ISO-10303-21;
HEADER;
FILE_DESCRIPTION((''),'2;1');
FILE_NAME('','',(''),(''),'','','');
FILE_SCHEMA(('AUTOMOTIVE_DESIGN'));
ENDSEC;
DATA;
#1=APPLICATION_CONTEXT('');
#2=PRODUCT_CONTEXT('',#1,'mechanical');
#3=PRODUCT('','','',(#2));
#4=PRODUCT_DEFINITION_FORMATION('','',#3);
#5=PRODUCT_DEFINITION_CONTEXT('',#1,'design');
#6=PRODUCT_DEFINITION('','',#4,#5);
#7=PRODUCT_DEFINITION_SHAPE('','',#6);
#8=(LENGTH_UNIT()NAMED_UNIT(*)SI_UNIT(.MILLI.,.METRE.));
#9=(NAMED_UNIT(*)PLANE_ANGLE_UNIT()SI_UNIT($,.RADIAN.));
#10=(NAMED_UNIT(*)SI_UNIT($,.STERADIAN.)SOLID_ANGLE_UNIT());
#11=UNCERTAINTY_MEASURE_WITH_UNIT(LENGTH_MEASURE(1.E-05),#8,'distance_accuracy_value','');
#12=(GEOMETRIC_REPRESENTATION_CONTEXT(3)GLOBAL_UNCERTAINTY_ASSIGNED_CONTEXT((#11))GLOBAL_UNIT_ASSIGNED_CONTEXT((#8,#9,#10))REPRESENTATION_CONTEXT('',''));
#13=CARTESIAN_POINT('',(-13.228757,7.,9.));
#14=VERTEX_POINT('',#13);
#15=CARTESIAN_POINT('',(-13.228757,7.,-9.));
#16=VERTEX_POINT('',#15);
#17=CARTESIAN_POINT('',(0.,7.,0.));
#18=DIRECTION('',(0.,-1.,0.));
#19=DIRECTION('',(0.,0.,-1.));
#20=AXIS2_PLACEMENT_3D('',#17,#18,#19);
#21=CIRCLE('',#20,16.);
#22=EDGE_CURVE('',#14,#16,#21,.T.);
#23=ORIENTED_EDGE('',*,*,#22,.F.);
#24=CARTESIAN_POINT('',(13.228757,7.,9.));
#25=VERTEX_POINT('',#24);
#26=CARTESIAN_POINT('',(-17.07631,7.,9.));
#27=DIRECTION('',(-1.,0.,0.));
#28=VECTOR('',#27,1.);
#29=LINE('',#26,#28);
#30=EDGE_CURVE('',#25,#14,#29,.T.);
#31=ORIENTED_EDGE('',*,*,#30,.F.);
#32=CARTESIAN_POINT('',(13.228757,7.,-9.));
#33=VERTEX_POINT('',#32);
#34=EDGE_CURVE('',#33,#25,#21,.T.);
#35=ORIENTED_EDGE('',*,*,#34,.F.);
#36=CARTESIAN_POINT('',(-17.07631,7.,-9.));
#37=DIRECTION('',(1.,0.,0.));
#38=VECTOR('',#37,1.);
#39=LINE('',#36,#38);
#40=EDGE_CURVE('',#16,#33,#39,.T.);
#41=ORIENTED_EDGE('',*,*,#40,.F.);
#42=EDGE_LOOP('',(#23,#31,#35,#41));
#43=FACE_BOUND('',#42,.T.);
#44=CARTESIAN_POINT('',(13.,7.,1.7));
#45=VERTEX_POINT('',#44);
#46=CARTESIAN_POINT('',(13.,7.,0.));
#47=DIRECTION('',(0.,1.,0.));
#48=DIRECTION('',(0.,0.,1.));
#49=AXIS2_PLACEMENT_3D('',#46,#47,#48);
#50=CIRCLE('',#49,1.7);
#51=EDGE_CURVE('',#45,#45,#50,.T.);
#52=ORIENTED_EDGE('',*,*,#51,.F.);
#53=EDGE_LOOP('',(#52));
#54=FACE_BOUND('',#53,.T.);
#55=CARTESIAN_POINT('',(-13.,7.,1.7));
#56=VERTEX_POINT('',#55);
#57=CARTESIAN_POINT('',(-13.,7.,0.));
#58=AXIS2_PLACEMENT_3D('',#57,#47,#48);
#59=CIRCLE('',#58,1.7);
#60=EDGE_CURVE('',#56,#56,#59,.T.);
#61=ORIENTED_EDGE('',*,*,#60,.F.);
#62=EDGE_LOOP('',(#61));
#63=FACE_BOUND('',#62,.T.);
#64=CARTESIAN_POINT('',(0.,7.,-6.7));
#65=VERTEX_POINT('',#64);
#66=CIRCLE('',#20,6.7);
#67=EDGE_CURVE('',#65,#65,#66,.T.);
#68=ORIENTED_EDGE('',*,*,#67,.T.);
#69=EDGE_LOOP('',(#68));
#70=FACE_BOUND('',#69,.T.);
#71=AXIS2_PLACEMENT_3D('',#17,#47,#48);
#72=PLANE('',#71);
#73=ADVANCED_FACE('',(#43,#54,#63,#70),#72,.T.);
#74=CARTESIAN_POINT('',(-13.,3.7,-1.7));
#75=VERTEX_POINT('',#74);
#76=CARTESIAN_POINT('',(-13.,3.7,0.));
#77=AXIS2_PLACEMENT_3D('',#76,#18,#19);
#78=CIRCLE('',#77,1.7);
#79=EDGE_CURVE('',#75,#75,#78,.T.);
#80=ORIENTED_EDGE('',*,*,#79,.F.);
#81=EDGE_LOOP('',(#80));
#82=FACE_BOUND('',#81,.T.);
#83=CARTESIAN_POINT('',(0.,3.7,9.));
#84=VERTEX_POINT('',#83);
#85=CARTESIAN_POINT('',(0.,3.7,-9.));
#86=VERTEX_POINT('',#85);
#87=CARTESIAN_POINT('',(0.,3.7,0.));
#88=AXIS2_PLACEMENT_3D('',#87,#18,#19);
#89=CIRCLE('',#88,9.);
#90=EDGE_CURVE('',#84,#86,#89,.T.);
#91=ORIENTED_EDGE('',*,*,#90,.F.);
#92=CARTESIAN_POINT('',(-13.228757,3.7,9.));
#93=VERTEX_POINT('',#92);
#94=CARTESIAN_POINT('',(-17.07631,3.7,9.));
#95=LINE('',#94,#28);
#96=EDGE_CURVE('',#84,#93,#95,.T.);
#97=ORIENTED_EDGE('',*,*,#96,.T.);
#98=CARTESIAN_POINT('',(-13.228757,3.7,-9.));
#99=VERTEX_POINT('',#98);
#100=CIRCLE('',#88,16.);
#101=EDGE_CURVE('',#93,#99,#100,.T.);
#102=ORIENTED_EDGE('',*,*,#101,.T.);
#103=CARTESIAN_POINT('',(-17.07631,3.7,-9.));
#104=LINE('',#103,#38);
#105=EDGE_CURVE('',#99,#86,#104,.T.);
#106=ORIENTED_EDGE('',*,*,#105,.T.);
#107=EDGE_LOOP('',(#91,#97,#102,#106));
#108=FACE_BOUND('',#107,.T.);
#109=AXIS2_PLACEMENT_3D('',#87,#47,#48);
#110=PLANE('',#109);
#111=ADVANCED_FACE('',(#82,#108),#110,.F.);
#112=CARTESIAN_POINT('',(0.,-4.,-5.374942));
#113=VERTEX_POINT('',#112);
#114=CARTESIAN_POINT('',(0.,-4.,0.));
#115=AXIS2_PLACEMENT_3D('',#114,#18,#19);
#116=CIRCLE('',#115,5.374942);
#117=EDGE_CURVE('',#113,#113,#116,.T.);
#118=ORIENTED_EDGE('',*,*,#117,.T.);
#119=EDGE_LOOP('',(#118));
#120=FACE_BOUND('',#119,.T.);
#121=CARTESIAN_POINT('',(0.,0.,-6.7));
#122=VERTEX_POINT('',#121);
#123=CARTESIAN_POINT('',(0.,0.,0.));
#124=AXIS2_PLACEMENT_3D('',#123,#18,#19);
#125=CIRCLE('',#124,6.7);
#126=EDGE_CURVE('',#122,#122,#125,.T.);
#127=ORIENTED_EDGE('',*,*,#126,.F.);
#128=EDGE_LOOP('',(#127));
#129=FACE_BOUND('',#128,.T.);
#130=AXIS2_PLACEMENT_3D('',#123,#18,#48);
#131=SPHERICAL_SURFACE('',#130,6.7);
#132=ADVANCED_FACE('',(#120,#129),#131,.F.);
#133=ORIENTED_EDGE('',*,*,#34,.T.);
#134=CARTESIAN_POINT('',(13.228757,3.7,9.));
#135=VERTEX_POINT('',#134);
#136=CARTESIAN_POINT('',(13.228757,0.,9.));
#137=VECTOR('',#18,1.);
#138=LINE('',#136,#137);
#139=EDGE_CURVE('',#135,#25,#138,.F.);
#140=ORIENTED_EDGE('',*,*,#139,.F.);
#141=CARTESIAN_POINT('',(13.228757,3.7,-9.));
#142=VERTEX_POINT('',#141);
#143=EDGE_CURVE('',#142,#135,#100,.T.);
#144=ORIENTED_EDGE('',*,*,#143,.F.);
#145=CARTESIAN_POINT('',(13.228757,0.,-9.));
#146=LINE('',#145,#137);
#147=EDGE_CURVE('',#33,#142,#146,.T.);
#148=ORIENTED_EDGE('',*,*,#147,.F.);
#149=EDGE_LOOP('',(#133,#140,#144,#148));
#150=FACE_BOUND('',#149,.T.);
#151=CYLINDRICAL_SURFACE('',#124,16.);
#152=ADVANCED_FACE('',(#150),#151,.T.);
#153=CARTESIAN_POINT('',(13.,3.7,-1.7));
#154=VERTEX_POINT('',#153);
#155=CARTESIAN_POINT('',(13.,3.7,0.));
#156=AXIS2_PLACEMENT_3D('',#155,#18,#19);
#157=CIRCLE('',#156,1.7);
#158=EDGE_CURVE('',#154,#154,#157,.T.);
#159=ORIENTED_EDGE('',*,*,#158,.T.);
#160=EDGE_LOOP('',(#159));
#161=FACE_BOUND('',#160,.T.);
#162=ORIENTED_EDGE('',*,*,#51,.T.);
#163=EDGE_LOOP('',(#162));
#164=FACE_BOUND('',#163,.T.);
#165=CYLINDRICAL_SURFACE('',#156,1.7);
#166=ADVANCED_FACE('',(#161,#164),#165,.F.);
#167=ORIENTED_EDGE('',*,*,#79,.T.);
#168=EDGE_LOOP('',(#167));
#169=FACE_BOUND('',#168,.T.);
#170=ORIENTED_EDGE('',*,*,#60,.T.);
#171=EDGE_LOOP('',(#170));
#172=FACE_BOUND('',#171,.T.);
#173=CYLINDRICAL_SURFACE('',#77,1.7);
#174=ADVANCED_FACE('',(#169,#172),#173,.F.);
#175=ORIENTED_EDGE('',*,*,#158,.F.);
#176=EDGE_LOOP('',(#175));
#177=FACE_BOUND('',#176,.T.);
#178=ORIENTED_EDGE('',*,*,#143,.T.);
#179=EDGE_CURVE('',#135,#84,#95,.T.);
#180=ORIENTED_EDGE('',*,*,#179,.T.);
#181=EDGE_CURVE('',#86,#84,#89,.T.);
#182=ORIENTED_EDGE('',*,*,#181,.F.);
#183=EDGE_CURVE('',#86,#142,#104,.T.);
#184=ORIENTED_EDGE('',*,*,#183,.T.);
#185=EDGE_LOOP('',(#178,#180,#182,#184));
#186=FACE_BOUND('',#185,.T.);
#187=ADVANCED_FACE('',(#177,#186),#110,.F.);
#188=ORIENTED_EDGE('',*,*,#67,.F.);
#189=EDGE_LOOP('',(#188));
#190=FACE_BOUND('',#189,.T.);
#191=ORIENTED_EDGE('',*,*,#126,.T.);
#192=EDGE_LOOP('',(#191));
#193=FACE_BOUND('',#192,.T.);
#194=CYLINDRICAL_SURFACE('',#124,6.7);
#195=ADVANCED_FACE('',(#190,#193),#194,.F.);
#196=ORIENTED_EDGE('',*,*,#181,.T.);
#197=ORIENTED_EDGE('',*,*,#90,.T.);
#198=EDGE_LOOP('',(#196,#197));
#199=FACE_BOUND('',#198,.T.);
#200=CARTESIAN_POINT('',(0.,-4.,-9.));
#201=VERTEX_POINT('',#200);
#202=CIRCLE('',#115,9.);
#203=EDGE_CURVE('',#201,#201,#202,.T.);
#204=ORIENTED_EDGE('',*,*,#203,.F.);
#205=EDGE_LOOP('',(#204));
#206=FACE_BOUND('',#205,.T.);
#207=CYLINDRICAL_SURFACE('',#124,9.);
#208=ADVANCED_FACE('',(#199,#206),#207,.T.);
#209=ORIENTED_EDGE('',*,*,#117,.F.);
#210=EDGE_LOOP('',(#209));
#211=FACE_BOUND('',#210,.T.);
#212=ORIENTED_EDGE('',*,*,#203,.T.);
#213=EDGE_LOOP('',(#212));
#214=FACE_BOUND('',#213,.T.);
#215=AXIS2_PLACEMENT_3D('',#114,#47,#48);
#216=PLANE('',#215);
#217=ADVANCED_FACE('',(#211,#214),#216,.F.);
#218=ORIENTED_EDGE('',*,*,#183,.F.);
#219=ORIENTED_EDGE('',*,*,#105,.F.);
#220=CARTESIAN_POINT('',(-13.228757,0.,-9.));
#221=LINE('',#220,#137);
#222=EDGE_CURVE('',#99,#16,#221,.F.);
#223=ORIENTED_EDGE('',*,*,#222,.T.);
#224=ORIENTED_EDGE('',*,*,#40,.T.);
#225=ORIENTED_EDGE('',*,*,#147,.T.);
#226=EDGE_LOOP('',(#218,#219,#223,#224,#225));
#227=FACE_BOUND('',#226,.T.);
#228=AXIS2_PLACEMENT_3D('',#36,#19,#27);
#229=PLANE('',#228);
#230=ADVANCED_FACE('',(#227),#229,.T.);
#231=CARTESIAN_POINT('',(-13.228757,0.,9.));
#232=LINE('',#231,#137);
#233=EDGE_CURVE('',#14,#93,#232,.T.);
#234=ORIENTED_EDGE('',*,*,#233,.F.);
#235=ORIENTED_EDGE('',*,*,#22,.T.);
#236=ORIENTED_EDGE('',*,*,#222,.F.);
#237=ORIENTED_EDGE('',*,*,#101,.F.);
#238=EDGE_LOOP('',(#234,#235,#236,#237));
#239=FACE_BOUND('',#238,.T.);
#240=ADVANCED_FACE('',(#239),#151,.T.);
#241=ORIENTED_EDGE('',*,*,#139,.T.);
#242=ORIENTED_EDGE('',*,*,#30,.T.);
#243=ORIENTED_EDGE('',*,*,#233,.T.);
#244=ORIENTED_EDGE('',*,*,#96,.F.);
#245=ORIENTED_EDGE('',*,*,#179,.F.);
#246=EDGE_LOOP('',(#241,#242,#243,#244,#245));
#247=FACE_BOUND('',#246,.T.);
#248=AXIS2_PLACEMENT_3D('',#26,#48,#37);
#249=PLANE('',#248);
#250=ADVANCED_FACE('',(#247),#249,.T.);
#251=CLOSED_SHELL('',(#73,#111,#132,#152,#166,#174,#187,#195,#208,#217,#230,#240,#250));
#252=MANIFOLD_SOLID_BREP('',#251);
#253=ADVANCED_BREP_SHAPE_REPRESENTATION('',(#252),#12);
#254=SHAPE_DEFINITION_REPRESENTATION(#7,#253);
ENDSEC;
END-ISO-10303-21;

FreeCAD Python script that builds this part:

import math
import FreeCAD as App
import Part
import Sketcher
from FreeCAD import Vector
Q = App.Units.Quantity

doc = App.newDocument("Part")
body = doc.addObject("PartDesign::Body", "Body")

sketch1 = body.newObject("Sketcher::SketchObject", "Sketch")
sketch1.AttachmentSupport = (doc.getObject("YZ_Plane"), [""])
sketch1.MapMode = "FlatFace"
sketch1.addGeometry([
    Part.ArcOfCircle(Part.Circle(Vector(0, 0, 0), Vector(0, 0, 1), 6.7), math.radians(90), math.radians(127)),
    Part.LineSegment(Vector(0, 6.7, 0), Vector(7, 6.7, 0)),
    Part.LineSegment(Vector(7, 6.7, 0), Vector(7, 16, 0)),
    Part.LineSegment(Vector(7, 16, 0), Vector(3.7, 16, 0)),
    Part.LineSegment(Vector(3.7, 16, 0), Vector(3.7, 9, 0)),
    Part.LineSegment(Vector(3.7, 9, 0), Vector(-4, 9, 0)),
    Part.LineSegment(Vector(-4, 9, 0), Vector(-4, 5.4, 0)),
], False)
sketch1.addConstraint([
    Sketcher.Constraint("Tangent", 0, 1, 1, 1),
    Sketcher.Constraint("Coincident", 1, 2, 2, 1),
    Sketcher.Constraint("Coincident", 2, 2, 3, 1),
    Sketcher.Constraint("Coincident", 3, 2, 4, 1),
    Sketcher.Constraint("Coincident", 4, 2, 5, 1),
    Sketcher.Constraint("Coincident", 5, 2, 6, 1),
    Sketcher.Constraint("Coincident", 6, 2, 0, 2),
    Sketcher.Constraint("Horizontal", 1),
    Sketcher.Constraint("Vertical", 2),
    Sketcher.Constraint("Horizontal", 3),
    Sketcher.Constraint("Vertical", 4),
    Sketcher.Constraint("Horizontal", 5),
    Sketcher.Constraint("Vertical", 6),
    Sketcher.Constraint("Coincident", 0, 3, -1, 1),
    Sketcher.Constraint("Equal", 1, 4),
    Sketcher.Constraint("Radius", 0, 6.7),
    Sketcher.Constraint("DistanceX", 1, 1, 1, 2, 7.0),
    Sketcher.Constraint("DistanceX", 3, 2, 3, 1, 3.3),
    Sketcher.Constraint("DistanceX", 5, 2, 5, 1, 7.7),
    Sketcher.Constraint("DistanceY", 2, 1, 2, 2, 9.3),
])
revolution = body.newObject("PartDesign::Revolution", "Revolution")
revolution.Profile = sketch1
revolution.ReferenceAxis = (sketch1, ["H_Axis"])
revolution.Angle = 360

sketch2 = body.newObject("Sketcher::SketchObject", "Sketch001")
sketch2.AttachmentSupport = (doc.getObject("YZ_Plane"), [""])
sketch2.MapMode = "FlatFace"
sketch2.AttachmentOffset = App.Placement(Vector(0, 0, -13), App.Rotation())
sketch2.addGeometry([
    Part.LineSegment(Vector(14.7, 0, 0), Vector(3.7, 0, 0)),
    Part.LineSegment(Vector(3.7, 0, 0), Vector(3.7, -1.7, 0)),
    Part.LineSegment(Vector(3.7, -1.7, 0), Vector(13.7, -1.7, 0)),
    Part.LineSegment(Vector(13.7, -1.7, 0), Vector(14.7, 0, 0)),
], False)
sketch2.addConstraint([
    Sketcher.Constraint("Coincident", 0, 2, 1, 1),
    Sketcher.Constraint("Coincident", 1, 2, 2, 1),
    Sketcher.Constraint("Coincident", 2, 2, 3, 1),
    Sketcher.Constraint("Coincident", 3, 2, 0, 1),
    Sketcher.Constraint("Horizontal", 0),
    Sketcher.Constraint("Vertical", 1),
    Sketcher.Constraint("Horizontal", 2),
    Sketcher.Constraint("PointOnObject", 0, 2, -1),
    Sketcher.Constraint("DistanceX", 2, 1, 2, 2, 10.0),
    Sketcher.Constraint("Angle", 3, Q("59 deg")),
    Sketcher.Constraint("DistanceY", 1, 2, 1, 1, 1.7),
    Sketcher.Constraint("DistanceX", -1, 1, 0, 2, 3.7),
])
groove = body.newObject("PartDesign::Groove", "Groove")
groove.Profile = sketch2
groove.ReferenceAxis = (sketch2, ["H_Axis"])
groove.Angle = 360
doc.recompute()

polarpattern = body.newObject("PartDesign::PolarPattern", "PolarPattern")
polarpattern.Originals = [groove]
polarpattern.Axis = (doc.getObject("Y_Axis"), [""])
polarpattern.Angle = 360
polarpattern.Occurrences = 2
body.Tip = polarpattern

sketch3 = body.newObject("Sketcher::SketchObject", "Sketch002")
sketch3.AttachmentSupport = (doc.getObject("XZ_Plane"), [""])
sketch3.MapMode = "FlatFace"
sketch3.AttachmentOffset = App.Placement(Vector(0, 0, -3.7), App.Rotation())
sketch3.addGeometry([
    Part.LineSegment(Vector(-24, 18, 0), Vector(-24, -19, 0)),
    Part.LineSegment(Vector(-24, -19, 0), Vector(27, -19, 0)),
    Part.LineSegment(Vector(27, -19, 0), Vector(27, 18, 0)),
    Part.LineSegment(Vector(27, 18, 0), Vector(-24, 18, 0)),
    Part.LineSegment(Vector(21, -9, 0), Vector(-17, -9, 0)),
    Part.LineSegment(Vector(-17, -9, 0), Vector(-17, 9, 0)),
    Part.LineSegment(Vector(-17, 9, 0), Vector(21, 9, 0)),
    Part.LineSegment(Vector(21, 9, 0), Vector(21, -9, 0)),
], False)
sketch3.addConstraint([
    Sketcher.Constraint("Coincident", 0, 2, 1, 1),
    Sketcher.Constraint("Coincident", 1, 2, 2, 1),
    Sketcher.Constraint("Coincident", 2, 2, 3, 1),
    Sketcher.Constraint("Coincident", 3, 2, 0, 1),
    Sketcher.Constraint("Coincident", 4, 2, 5, 1),
    Sketcher.Constraint("Coincident", 5, 2, 6, 1),
    Sketcher.Constraint("Coincident", 6, 2, 7, 1),
    Sketcher.Constraint("Coincident", 7, 2, 4, 1),
    Sketcher.Constraint("Vertical", 0),
    Sketcher.Constraint("Horizontal", 1),
    Sketcher.Constraint("Vertical", 2),
    Sketcher.Constraint("Horizontal", 3),
    Sketcher.Constraint("Horizontal", 4),
    Sketcher.Constraint("Vertical", 5),
    Sketcher.Constraint("Horizontal", 6),
    Sketcher.Constraint("Vertical", 7),
    Sketcher.Constraint("DistanceY", 5, 1, 5, 2, 18.0),
    Sketcher.Constraint("DistanceY", 4, 2, -1, 1, 9.0),
    Sketcher.Constraint("DistanceX", 4, 2, 4, 1, 37.991099),
    Sketcher.Constraint("DistanceY", 0, 2, 0, 1, 37.261009),
    Sketcher.Constraint("DistanceX", 1, 1, 1, 2, 50.426983),
    Sketcher.Constraint("DistanceY", 0, 2, -1, 1, 19.488261),
    Sketcher.Constraint("DistanceX", -1, 1, 1, 2, 26.70164),
    Sketcher.Constraint("DistanceX", 4, 2, -1, 1, 17.07631),
])
pocket1 = body.newObject("PartDesign::Pocket", "Pocket")
pocket1.Profile = sketch3
pocket1.Type = "ThroughAll"

doc.recompute()
